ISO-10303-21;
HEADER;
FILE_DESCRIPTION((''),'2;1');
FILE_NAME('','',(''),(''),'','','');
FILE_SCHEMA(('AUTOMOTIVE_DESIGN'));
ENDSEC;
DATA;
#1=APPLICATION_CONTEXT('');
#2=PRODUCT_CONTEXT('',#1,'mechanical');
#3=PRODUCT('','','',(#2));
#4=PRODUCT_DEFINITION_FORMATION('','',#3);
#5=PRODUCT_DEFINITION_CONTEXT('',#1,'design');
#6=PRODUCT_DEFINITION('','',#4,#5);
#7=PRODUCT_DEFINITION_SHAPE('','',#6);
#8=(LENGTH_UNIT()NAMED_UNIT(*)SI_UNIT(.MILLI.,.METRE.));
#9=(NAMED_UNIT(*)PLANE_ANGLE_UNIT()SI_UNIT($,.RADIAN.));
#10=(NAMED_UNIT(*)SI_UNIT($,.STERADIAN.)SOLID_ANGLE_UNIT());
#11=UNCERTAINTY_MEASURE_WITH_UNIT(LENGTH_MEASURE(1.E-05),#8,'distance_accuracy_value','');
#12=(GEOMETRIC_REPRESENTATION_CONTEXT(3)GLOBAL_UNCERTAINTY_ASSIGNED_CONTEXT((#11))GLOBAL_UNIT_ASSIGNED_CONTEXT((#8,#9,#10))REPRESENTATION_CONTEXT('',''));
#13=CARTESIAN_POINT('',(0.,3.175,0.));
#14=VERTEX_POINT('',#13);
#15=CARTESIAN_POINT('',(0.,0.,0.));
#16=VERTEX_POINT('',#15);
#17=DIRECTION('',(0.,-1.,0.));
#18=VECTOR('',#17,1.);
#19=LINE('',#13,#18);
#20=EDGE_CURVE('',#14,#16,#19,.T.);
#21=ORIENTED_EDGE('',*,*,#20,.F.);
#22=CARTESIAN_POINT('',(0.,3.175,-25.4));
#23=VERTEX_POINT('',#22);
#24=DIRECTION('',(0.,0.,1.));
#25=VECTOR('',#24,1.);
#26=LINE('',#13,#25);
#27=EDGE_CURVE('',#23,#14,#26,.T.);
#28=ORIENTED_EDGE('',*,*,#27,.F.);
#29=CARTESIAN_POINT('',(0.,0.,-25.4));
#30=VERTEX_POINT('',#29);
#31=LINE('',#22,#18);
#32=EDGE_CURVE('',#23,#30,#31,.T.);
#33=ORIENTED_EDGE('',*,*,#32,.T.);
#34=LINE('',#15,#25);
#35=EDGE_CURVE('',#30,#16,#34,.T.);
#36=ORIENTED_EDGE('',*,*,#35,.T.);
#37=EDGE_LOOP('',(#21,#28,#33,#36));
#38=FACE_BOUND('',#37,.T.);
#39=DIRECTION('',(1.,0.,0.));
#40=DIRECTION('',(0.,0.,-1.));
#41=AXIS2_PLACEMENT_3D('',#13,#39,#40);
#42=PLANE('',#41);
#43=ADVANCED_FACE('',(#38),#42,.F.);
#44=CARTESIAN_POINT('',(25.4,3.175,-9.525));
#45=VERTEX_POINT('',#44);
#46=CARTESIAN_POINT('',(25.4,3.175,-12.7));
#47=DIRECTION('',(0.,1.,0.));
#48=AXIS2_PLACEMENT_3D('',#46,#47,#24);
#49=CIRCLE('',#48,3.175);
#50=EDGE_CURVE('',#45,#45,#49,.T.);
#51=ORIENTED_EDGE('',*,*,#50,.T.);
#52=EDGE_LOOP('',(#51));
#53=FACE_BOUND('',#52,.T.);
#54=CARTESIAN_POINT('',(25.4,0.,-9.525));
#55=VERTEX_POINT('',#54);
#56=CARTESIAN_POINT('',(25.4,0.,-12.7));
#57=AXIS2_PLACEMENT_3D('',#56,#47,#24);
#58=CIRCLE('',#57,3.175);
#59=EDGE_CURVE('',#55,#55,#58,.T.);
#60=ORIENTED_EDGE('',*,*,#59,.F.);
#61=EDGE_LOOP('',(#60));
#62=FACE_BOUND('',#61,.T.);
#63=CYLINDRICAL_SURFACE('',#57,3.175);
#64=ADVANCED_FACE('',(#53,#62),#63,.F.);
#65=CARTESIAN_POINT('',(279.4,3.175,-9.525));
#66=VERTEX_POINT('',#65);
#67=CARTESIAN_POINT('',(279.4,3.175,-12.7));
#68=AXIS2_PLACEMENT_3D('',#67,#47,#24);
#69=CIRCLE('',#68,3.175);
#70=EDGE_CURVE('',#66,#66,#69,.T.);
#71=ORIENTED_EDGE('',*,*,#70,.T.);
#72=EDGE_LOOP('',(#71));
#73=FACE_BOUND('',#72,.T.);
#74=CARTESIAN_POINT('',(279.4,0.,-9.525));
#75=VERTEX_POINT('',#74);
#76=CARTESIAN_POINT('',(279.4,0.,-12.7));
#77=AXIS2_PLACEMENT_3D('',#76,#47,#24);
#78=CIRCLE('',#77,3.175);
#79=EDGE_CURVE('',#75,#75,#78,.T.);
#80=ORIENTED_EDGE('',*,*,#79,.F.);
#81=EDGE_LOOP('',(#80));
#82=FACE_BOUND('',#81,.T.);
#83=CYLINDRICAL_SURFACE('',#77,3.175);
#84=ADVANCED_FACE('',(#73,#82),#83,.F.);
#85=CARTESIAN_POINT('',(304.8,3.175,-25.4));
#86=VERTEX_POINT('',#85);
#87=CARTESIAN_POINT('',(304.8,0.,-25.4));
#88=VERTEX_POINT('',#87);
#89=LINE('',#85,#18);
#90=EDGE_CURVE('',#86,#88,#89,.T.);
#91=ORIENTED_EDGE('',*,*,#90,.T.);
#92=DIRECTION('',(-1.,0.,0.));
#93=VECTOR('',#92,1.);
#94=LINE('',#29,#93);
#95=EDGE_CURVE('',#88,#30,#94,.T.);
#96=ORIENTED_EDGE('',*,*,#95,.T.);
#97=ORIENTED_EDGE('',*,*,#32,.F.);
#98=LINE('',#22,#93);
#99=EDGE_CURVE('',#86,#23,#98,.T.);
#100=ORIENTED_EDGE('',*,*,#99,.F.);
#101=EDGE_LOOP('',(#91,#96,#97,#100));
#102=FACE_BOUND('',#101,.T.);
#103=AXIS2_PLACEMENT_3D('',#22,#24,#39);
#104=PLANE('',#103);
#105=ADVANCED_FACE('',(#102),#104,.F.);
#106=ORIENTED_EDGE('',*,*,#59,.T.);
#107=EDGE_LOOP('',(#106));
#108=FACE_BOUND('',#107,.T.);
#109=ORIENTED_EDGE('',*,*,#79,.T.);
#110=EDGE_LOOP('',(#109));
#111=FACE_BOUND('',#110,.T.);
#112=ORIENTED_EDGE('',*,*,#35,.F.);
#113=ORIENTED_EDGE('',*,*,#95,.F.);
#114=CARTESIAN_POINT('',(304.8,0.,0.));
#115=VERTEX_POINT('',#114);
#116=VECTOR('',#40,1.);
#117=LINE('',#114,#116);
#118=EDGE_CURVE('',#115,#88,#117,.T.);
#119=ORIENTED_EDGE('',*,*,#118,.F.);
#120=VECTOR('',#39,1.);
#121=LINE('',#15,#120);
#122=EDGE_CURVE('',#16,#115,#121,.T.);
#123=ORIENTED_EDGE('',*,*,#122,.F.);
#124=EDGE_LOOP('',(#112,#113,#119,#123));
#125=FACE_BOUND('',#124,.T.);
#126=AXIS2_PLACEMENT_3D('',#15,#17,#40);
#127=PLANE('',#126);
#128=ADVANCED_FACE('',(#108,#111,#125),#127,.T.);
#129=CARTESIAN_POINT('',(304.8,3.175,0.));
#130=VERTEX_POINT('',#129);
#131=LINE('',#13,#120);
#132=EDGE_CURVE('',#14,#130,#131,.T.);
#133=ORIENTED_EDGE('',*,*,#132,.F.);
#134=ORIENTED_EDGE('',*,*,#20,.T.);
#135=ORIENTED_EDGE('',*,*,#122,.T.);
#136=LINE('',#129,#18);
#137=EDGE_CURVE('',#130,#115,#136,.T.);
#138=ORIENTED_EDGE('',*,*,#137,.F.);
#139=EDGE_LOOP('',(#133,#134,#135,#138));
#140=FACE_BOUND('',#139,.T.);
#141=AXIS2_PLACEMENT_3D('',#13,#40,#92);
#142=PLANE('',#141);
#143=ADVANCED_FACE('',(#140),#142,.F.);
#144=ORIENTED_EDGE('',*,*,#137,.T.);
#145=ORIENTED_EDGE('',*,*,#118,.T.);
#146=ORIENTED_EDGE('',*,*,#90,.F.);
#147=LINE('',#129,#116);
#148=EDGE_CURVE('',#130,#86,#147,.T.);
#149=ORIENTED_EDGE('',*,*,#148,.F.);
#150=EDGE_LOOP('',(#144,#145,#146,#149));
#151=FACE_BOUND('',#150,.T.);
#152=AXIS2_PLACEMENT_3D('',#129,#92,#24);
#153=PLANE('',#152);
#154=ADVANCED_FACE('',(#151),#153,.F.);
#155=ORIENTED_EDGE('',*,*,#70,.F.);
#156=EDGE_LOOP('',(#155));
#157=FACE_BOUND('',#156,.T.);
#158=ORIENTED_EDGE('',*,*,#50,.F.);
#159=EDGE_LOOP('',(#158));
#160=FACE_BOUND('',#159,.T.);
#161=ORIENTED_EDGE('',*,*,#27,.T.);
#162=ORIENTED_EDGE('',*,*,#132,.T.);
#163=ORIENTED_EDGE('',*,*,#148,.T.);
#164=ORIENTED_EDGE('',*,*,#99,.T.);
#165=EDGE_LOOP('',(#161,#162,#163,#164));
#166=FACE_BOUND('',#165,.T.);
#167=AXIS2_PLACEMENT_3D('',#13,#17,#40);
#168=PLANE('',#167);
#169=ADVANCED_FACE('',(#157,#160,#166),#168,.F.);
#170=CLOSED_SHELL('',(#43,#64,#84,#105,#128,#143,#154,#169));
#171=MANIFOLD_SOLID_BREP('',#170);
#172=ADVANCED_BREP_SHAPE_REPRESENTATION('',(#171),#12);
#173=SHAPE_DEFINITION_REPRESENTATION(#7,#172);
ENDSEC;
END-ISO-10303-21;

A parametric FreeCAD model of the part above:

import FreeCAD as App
import Part
import Sketcher

V = App.Vector
Q = App.Units.Quantity

doc = App.newDocument("Part")
params = doc.addObject("Spreadsheet::Sheet", "Params")
for row, (alias, value) in enumerate([
    ("sketch1_width", "12 in"),
    ("sketch1_height", "1 in"),
    ("pad1_length", "0.125 in"),
    ("sketch2_diameter", "0.25 in"),
], start=1):
    params.set(f"A{row}", alias)
    params.set(f"B{row}", "=" + value)
    params.setAlias(f"B{row}", alias)

body = doc.addObject("PartDesign::Body", "Body")

# Sketch on XZ plane
sketch1 = body.newObject("Sketcher::SketchObject", "Sketch")
sketch1.AttachmentSupport = (doc.getObject("XZ_Plane"), [""])
sketch1.MapMode = "FlatFace"
sketch1.addGeometry(Part.LineSegment(V(0, -25.4, 0), V(0, 0, 0)), False)
sketch1.addGeometry(Part.LineSegment(V(0, 0, 0), V(304.8, 0, 0)), False)
sketch1.addGeometry(Part.LineSegment(V(304.8, 0, 0), V(304.8, -25.4, 0)), False)
sketch1.addGeometry(Part.LineSegment(V(304.8, -25.4, 0), V(0, -25.4, 0)), False)
sketch1.addConstraint(Sketcher.Constraint("Coincident", 0, 2, 1, 1))
sketch1.addConstraint(Sketcher.Constraint("Coincident", 1, 2, 2, 1))
sketch1.addConstraint(Sketcher.Constraint("Coincident", 2, 2, 3, 1))
sketch1.addConstraint(Sketcher.Constraint("Coincident", 3, 2, 0, 1))
sketch1.addConstraint(Sketcher.Constraint("Vertical", 0))
sketch1.addConstraint(Sketcher.Constraint("Horizontal", 1))
sketch1.addConstraint(Sketcher.Constraint("Vertical", 2))
sketch1.addConstraint(Sketcher.Constraint("Horizontal", 3))
sketch1.addConstraint(Sketcher.Constraint("Coincident", 0, 2, -1, 1))
sketch1.addConstraint(Sketcher.Constraint("DistanceX", 1, 1, 1, 2, Q("12 in")))
sketch1.addConstraint(Sketcher.Constraint("DistanceY", 0, 1, 0, 2, Q("1 in")))
sketch1.setExpression("Constraints[9]", "Params.sketch1_width")
sketch1.setExpression("Constraints[10]", "Params.sketch1_height")
pad1 = body.newObject("PartDesign::Pad", "Pad")
pad1.Profile = sketch1
pad1.setExpression("Length", "Params.pad1_length")
pad1.Reversed = True

# Sketch on XZ plane
sketch2 = body.newObject("Sketcher::SketchObject", "Sketch001")
sketch2.AttachmentSupport = (doc.getObject("XZ_Plane"), [""])
sketch2.MapMode = "FlatFace"
sketch2.AttachmentOffset = App.Placement(V(0, 0, -0.125 * 25.4), App.Rotation())
sketch2.addGeometry(Part.Circle(V(279.4, -12.7, 0), V(0, 0, 1), 3.175), False)
sketch2.addGeometry(Part.Circle(V(25.4, -12.7, 0), V(0, 0, 1), 3.175), False)
sketch2.addConstraint(Sketcher.Constraint("Equal", 0, 1))
sketch2.addConstraint(Sketcher.Constraint("Horizontal", 0, 3, 1, 3))
sketch2.addConstraint(Sketcher.Constraint("Diameter", 0, Q("0.25 in")))
sketch2.addConstraint(Sketcher.Constraint("DistanceX", -1, 1, 0, 3, Q("11 in")))
sketch2.addConstraint(Sketcher.Constraint("DistanceX", -1, 1, 1, 3, Q("1 in")))
sketch2.addConstraint(Sketcher.Constraint("DistanceY", 0, 3, -1, 1, Q("0.5 in")))
sketch2.setExpression("Constraints[2]", "Params.sketch2_diameter")
pocket1 = body.newObject("PartDesign::Pocket", "Pocket")
pocket1.Profile = sketch2
pocket1.Type = "ThroughAll"
pocket1.Reversed = True

doc.recompute()
